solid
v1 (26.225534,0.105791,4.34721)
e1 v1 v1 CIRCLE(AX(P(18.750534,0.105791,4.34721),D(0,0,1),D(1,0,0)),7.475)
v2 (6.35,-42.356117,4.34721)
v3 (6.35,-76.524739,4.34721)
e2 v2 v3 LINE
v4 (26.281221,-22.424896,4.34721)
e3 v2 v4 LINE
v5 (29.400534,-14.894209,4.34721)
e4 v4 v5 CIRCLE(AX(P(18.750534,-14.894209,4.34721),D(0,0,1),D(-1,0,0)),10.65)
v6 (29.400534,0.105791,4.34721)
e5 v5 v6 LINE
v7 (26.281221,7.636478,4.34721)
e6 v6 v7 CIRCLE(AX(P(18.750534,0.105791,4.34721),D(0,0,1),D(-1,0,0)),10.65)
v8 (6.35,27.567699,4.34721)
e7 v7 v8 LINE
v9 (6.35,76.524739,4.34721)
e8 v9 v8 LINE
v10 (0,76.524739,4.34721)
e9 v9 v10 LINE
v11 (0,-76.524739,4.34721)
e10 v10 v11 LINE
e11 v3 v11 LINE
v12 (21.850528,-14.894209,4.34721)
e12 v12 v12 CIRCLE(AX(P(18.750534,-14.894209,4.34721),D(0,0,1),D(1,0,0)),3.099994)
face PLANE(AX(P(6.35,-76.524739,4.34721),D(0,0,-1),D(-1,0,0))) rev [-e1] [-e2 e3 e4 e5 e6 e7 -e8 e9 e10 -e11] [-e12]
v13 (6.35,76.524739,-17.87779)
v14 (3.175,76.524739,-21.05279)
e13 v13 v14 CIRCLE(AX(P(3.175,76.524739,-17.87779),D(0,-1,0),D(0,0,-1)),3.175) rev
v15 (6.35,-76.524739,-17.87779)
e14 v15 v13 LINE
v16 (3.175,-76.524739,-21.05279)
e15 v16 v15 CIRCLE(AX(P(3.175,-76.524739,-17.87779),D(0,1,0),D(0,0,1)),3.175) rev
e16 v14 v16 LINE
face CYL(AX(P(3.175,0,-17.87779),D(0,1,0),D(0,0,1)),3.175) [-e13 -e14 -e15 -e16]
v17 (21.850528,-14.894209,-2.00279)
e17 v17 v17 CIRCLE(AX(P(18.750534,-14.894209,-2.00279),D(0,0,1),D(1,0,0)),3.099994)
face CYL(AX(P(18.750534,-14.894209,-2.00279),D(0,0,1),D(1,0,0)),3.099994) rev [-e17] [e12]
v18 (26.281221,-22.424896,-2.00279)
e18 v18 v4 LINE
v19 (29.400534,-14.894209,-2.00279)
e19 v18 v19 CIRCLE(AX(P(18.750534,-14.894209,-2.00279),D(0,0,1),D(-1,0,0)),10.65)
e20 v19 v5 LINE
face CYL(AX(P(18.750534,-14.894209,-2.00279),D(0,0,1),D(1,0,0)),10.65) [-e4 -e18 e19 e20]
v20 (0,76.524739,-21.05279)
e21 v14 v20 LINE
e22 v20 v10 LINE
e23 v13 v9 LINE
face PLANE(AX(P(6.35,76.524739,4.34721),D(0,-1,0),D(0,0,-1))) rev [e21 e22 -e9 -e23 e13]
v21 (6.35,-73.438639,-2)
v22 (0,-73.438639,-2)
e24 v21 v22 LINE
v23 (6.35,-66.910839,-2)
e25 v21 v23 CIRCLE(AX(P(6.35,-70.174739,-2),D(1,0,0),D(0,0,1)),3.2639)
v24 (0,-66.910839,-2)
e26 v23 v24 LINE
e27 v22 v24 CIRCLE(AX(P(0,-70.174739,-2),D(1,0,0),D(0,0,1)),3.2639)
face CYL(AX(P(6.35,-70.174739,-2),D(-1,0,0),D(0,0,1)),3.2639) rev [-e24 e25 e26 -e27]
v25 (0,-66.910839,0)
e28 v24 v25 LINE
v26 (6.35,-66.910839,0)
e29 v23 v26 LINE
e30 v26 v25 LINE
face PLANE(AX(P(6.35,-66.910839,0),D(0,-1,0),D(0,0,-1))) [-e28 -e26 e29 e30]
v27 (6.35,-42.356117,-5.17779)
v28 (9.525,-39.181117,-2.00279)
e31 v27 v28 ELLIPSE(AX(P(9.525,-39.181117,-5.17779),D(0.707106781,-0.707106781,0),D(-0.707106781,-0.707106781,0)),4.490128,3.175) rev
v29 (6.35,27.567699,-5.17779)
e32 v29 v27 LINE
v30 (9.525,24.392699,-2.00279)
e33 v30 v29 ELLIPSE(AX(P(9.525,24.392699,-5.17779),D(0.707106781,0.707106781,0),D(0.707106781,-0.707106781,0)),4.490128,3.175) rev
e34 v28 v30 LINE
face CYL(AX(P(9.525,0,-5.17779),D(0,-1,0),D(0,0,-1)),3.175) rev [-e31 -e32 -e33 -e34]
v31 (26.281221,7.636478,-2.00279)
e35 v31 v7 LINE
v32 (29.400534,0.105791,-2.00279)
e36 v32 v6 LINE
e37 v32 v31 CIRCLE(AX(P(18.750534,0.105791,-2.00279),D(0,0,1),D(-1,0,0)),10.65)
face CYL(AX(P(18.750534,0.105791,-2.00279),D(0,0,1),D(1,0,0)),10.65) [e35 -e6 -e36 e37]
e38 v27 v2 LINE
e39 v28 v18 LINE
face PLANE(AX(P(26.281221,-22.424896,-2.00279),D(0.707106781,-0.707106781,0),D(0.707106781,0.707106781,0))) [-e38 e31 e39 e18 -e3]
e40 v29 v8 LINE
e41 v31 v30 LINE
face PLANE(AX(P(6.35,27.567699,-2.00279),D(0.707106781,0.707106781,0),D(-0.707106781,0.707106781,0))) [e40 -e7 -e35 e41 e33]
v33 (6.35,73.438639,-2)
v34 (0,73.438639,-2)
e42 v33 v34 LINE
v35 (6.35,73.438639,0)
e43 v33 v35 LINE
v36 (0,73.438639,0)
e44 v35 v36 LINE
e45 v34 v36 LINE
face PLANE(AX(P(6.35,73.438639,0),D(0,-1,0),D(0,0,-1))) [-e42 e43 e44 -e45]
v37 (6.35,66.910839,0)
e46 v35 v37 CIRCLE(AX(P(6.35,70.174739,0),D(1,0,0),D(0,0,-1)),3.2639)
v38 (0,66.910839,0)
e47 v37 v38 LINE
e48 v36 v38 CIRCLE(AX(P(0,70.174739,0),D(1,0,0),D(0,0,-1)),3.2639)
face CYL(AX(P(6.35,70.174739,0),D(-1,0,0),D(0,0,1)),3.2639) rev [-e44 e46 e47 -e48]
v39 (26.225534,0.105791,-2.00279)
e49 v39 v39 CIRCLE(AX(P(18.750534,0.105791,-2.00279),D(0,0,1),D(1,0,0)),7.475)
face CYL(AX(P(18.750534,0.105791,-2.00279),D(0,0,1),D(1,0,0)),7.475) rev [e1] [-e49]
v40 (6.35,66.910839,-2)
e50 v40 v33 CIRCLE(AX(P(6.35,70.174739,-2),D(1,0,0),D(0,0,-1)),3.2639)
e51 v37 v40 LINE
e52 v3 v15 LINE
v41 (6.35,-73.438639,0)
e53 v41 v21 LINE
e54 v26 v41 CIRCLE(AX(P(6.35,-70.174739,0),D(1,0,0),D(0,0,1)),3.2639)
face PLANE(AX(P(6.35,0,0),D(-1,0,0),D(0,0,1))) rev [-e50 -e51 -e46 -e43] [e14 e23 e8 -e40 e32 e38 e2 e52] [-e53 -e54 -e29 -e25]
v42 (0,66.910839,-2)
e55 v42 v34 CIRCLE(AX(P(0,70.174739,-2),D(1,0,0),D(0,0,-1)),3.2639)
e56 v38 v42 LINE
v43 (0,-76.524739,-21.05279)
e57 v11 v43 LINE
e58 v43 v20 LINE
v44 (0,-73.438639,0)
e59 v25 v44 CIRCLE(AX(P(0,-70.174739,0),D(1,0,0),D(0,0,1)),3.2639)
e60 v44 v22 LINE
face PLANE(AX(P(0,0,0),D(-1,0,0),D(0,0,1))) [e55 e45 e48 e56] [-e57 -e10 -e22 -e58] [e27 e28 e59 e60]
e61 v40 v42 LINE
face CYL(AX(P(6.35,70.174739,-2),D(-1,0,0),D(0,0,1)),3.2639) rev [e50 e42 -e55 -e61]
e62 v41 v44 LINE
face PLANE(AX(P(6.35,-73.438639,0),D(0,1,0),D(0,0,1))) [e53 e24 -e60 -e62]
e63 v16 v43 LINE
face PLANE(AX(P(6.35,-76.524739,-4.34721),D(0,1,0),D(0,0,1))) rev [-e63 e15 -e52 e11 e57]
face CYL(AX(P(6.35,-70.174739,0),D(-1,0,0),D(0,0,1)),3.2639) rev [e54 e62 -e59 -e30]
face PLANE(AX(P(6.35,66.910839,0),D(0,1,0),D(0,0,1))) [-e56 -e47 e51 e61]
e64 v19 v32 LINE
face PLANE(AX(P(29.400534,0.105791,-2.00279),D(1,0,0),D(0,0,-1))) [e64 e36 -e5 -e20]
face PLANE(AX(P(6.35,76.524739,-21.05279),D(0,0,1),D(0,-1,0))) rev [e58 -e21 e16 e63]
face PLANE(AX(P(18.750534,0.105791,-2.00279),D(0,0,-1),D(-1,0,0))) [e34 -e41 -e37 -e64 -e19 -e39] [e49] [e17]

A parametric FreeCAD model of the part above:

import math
import FreeCAD as App
import Part
import Sketcher
Q = App.Units.Quantity


def edges_at(feature, points):
    """Names of the edges that pass closest to the given points."""
    edges = feature.Shape.Edges
    near = lambda p: min(range(len(edges)), key=lambda i: edges[i].distToShape(Part.Vertex(*p))[0])
    return sorted({f"Edge{near(p) + 1}" for p in points})

doc = App.newDocument("Part")
body = doc.addObject("PartDesign::Body", "Body")

# Sketch on YZ plane
sketch1 = body.newObject("Sketcher::SketchObject", "Sketch")
sketch1.AttachmentSupport = (doc.getObject("YZ_Plane"), [""])
sketch1.MapMode = "FlatFace"
sketch1.addGeometry(Part.LineSegment(App.Vector(-76.5, 4.3, 0), App.Vector(-76.5, -21.1, 0)), False)
sketch1.addGeometry(Part.LineSegment(App.Vector(-76.5, -21.1, 0), App.Vector(76.5, -21.1, 0)), False)
sketch1.addGeometry(Part.LineSegment(App.Vector(76.5, -21.1, 0), App.Vector(76.5, 4.3, 0)), False)
sketch1.addGeometry(Part.LineSegment(App.Vector(76.5, 4.3, 0), App.Vector(-76.5, 4.3, 0)), False)
sketch1.addGeometry(Part.ArcOfCircle(Part.Circle(App.Vector(-70.2, 0, 0), App.Vector(0, 0, 1), 3.3), math.radians(0), math.radians(180)), False)
sketch1.addGeometry(Part.LineSegment(App.Vector(-66.9, 0, 0), App.Vector(-66.9, -2, 0)), False)
sketch1.addGeometry(Part.ArcOfCircle(Part.Circle(App.Vector(-70.2, -2, 0), App.Vector(0, 0, 1), 3.3), math.radians(180), math.radians(360)), False)
sketch1.addGeometry(Part.LineSegment(App.Vector(-73.4, -2, 0), App.Vector(-73.4, 0, 0)), False)
sketch1.addGeometry(Part.ArcOfCircle(Part.Circle(App.Vector(70.2, 0, 0), App.Vector(0, 0, 1), 3.3), math.radians(0), math.radians(180)), False)
sketch1.addGeometry(Part.LineSegment(App.Vector(73.4, 0, 0), App.Vector(73.4, -2, 0)), False)
sketch1.addGeometry(Part.ArcOfCircle(Part.Circle(App.Vector(70.2, -2, 0), App.Vector(0, 0, 1), 3.3), math.radians(180), math.radians(360)), False)
sketch1.addGeometry(Part.LineSegment(App.Vector(66.9, -2, 0), App.Vector(66.9, 0, 0)), False)
sketch1.addConstraint(Sketcher.Constraint("Coincident", 0, 2, 1, 1))
sketch1.addConstraint(Sketcher.Constraint("Coincident", 1, 2, 2, 1))
sketch1.addConstraint(Sketcher.Constraint("Coincident", 2, 2, 3, 1))
sketch1.addConstraint(Sketcher.Constraint("Coincident", 3, 2, 0, 1))
sketch1.addConstraint(Sketcher.Constraint("Tangent", 4, 1, 5, 1))
sketch1.addConstraint(Sketcher.Constraint("Tangent", 5, 2, 6, 2))
sketch1.addConstraint(Sketcher.Constraint("Tangent", 6, 1, 7, 1))
sketch1.addConstraint(Sketcher.Constraint("Tangent", 7, 2, 4, 2))
sketch1.addConstraint(Sketcher.Constraint("Tangent", 8, 1, 9, 1))
sketch1.addConstraint(Sketcher.Constraint("Tangent", 9, 2, 10, 2))
sketch1.addConstraint(Sketcher.Constraint("Tangent", 10, 1, 11, 1))
sketch1.addConstraint(Sketcher.Constraint("Tangent", 11, 2, 8, 2))
sketch1.addConstraint(Sketcher.Constraint("Vertical", 0))
sketch1.addConstraint(Sketcher.Constraint("Horizontal", 1))
sketch1.addConstraint(Sketcher.Constraint("Vertical", 2))
sketch1.addConstraint(Sketcher.Constraint("Horizontal", 3))
sketch1.addConstraint(Sketcher.Constraint("Vertical", 5))
sketch1.addConstraint(Sketcher.Constraint("Vertical", 7))
sketch1.addConstraint(Sketcher.Constraint("Vertical", 9))
sketch1.addConstraint(Sketcher.Constraint("Vertical", 11))
sketch1.addConstraint(Sketcher.Constraint("Equal", 6, 8))
sketch1.addConstraint(Sketcher.Constraint("Symmetric", 4, 3, 8, 3, -1, 1))
sketch1.addConstraint(Sketcher.Constraint("PointOnObject", 4, 3, -1))
sketch1.addConstraint(Sketcher.Constraint("Horizontal", 6, 3, 10, 3))
sketch1.addConstraint(Sketcher.Constraint("DistanceY", 0, 2, 0, 1, Q("1 in")))
sketch1.addConstraint(Sketcher.Constraint("Radius", 4, Q("0.1285 in")))
sketch1.addConstraint(Sketcher.Constraint("DistanceX", 0, 2, 6, 3, Q("0.25 in")))
sketch1.addConstraint(Sketcher.Constraint("DistanceX", 10, 3, 1, 2, Q("0.25 in")))
sketch1.addConstraint(Sketcher.Constraint("DistanceY", 5, 2, 5, 1, 2.0))
sketch1.addConstraint(Sketcher.Constraint("DistanceX", 1, 1, 1, 2, 153.049478))
sketch1.addConstraint(Sketcher.Constraint("DistanceY", 0, 2, -1, 1, 21.05279))
pad1 = body.newObject("PartDesign::Pad", "Pad")
pad1.Profile = sketch1
pad1.Length = Q("0.25 in")

# Sketch on XY plane
sketch2 = body.newObject("Sketcher::SketchObject", "Sketch001")
sketch2.AttachmentSupport = (doc.getObject("XY_Plane"), [""])
sketch2.MapMode = "FlatFace"
sketch2.AttachmentOffset = App.Placement(App.Vector(0, 0, 4.34721), App.Rotation())
sketch2.addGeometry(Part.LineSegment(App.Vector(26.3, 7.6, 0), App.Vector(6.3, 27.6, 0)), False)
sketch2.addGeometry(Part.LineSegment(App.Vector(6.3, 27.6, 0), App.Vector(6.3, -42.4, 0)), False)
sketch2.addGeometry(Part.LineSegment(App.Vector(6.3, -42.4, 0), App.Vector(26.3, -22.4, 0)), False)
sketch2.addGeometry(Part.ArcOfCircle(Part.Circle(App.Vector(18.8, -14.9, 0), App.Vector(0, 0, 1), 10.7), math.radians(-45), math.radians(0)), False)
sketch2.addGeometry(Part.LineSegment(App.Vector(29.4, -14.9, 0), App.Vector(29.4, 0.1, 0)), False)
sketch2.addGeometry(Part.ArcOfCircle(Part.Circle(App.Vector(18.8, 0.1, 0), App.Vector(0, 0, 1), 10.7), math.radians(0), math.radians(45)), False)
sketch2.addGeometry(Part.Circle(App.Vector(18.8, -14.9, 0), App.Vector(0, 0, 1), 3.1), False)
sketch2.addGeometry(Part.Circle(App.Vector(18.8, 0.1, 0), App.Vector(0, 0, 1), 7.5), False)
sketch2.addConstraint(Sketcher.Constraint("Coincident", 0, 2, 1, 1))
sketch2.addConstraint(Sketcher.Constraint("Coincident", 1, 2, 2, 1))
sketch2.addConstraint(Sketcher.Constraint("Tangent", 2, 2, 3, 1))
sketch2.addConstraint(Sketcher.Constraint("Tangent", 3, 2, 4, 1))
sketch2.addConstraint(Sketcher.Constraint("Tangent", 4, 2, 5, 1))
sketch2.addConstraint(Sketcher.Constraint("Tangent", 5, 2, 0, 1))
sketch2.addConstraint(Sketcher.Constraint("Vertical", 1))
sketch2.addConstraint(Sketcher.Constraint("Vertical", 4))
sketch2.addConstraint(Sketcher.Constraint("Coincident", 6, 3, 3, 3))
sketch2.addConstraint(Sketcher.Constraint("Coincident", 7, 3, 5, 3))
sketch2.addConstraint(Sketcher.Constraint("Equal", 3, 5))
sketch2.addConstraint(Sketcher.Constraint("Perpendicular", 0, 2))
sketch2.addConstraint(Sketcher.Constraint("Vertical", 2, 2, 5, 2))
sketch2.addConstraint(Sketcher.Constraint("Diameter", 7, 14.95))
sketch2.addConstraint(Sketcher.Constraint("DistanceX", -1, 1, 0, 2, Q("0.25 in")))
sketch2.addConstraint(Sketcher.Constraint("Radius", 3, 10.65))
sketch2.addConstraint(Sketcher.Constraint("Diameter", 6, 6.199988))
sketch2.addConstraint(Sketcher.Constraint("DistanceY", 4, 1, 4, 2, 15.0))
sketch2.addConstraint(Sketcher.Constraint("DistanceY", -1, 1, 0, 2, 27.567699))
sketch2.addConstraint(Sketcher.Constraint("DistanceY", 1, 2, 1, 1, 69.923817))
pad2 = body.newObject("PartDesign::Pad", "Pad001")
pad2.Profile = sketch2
pad2.Length = Q("0.25 in")
pad2.Reversed = True
doc.recompute()

fillet = body.newObject("PartDesign::Fillet", "Fillet")
fillet.Base = (pad2, edges_at(pad2, [(6.35, 0, -21.053), (6.35, -7.394, -2.003)]))
fillet.Radius = Q("0.125 in")

doc.recompute()
